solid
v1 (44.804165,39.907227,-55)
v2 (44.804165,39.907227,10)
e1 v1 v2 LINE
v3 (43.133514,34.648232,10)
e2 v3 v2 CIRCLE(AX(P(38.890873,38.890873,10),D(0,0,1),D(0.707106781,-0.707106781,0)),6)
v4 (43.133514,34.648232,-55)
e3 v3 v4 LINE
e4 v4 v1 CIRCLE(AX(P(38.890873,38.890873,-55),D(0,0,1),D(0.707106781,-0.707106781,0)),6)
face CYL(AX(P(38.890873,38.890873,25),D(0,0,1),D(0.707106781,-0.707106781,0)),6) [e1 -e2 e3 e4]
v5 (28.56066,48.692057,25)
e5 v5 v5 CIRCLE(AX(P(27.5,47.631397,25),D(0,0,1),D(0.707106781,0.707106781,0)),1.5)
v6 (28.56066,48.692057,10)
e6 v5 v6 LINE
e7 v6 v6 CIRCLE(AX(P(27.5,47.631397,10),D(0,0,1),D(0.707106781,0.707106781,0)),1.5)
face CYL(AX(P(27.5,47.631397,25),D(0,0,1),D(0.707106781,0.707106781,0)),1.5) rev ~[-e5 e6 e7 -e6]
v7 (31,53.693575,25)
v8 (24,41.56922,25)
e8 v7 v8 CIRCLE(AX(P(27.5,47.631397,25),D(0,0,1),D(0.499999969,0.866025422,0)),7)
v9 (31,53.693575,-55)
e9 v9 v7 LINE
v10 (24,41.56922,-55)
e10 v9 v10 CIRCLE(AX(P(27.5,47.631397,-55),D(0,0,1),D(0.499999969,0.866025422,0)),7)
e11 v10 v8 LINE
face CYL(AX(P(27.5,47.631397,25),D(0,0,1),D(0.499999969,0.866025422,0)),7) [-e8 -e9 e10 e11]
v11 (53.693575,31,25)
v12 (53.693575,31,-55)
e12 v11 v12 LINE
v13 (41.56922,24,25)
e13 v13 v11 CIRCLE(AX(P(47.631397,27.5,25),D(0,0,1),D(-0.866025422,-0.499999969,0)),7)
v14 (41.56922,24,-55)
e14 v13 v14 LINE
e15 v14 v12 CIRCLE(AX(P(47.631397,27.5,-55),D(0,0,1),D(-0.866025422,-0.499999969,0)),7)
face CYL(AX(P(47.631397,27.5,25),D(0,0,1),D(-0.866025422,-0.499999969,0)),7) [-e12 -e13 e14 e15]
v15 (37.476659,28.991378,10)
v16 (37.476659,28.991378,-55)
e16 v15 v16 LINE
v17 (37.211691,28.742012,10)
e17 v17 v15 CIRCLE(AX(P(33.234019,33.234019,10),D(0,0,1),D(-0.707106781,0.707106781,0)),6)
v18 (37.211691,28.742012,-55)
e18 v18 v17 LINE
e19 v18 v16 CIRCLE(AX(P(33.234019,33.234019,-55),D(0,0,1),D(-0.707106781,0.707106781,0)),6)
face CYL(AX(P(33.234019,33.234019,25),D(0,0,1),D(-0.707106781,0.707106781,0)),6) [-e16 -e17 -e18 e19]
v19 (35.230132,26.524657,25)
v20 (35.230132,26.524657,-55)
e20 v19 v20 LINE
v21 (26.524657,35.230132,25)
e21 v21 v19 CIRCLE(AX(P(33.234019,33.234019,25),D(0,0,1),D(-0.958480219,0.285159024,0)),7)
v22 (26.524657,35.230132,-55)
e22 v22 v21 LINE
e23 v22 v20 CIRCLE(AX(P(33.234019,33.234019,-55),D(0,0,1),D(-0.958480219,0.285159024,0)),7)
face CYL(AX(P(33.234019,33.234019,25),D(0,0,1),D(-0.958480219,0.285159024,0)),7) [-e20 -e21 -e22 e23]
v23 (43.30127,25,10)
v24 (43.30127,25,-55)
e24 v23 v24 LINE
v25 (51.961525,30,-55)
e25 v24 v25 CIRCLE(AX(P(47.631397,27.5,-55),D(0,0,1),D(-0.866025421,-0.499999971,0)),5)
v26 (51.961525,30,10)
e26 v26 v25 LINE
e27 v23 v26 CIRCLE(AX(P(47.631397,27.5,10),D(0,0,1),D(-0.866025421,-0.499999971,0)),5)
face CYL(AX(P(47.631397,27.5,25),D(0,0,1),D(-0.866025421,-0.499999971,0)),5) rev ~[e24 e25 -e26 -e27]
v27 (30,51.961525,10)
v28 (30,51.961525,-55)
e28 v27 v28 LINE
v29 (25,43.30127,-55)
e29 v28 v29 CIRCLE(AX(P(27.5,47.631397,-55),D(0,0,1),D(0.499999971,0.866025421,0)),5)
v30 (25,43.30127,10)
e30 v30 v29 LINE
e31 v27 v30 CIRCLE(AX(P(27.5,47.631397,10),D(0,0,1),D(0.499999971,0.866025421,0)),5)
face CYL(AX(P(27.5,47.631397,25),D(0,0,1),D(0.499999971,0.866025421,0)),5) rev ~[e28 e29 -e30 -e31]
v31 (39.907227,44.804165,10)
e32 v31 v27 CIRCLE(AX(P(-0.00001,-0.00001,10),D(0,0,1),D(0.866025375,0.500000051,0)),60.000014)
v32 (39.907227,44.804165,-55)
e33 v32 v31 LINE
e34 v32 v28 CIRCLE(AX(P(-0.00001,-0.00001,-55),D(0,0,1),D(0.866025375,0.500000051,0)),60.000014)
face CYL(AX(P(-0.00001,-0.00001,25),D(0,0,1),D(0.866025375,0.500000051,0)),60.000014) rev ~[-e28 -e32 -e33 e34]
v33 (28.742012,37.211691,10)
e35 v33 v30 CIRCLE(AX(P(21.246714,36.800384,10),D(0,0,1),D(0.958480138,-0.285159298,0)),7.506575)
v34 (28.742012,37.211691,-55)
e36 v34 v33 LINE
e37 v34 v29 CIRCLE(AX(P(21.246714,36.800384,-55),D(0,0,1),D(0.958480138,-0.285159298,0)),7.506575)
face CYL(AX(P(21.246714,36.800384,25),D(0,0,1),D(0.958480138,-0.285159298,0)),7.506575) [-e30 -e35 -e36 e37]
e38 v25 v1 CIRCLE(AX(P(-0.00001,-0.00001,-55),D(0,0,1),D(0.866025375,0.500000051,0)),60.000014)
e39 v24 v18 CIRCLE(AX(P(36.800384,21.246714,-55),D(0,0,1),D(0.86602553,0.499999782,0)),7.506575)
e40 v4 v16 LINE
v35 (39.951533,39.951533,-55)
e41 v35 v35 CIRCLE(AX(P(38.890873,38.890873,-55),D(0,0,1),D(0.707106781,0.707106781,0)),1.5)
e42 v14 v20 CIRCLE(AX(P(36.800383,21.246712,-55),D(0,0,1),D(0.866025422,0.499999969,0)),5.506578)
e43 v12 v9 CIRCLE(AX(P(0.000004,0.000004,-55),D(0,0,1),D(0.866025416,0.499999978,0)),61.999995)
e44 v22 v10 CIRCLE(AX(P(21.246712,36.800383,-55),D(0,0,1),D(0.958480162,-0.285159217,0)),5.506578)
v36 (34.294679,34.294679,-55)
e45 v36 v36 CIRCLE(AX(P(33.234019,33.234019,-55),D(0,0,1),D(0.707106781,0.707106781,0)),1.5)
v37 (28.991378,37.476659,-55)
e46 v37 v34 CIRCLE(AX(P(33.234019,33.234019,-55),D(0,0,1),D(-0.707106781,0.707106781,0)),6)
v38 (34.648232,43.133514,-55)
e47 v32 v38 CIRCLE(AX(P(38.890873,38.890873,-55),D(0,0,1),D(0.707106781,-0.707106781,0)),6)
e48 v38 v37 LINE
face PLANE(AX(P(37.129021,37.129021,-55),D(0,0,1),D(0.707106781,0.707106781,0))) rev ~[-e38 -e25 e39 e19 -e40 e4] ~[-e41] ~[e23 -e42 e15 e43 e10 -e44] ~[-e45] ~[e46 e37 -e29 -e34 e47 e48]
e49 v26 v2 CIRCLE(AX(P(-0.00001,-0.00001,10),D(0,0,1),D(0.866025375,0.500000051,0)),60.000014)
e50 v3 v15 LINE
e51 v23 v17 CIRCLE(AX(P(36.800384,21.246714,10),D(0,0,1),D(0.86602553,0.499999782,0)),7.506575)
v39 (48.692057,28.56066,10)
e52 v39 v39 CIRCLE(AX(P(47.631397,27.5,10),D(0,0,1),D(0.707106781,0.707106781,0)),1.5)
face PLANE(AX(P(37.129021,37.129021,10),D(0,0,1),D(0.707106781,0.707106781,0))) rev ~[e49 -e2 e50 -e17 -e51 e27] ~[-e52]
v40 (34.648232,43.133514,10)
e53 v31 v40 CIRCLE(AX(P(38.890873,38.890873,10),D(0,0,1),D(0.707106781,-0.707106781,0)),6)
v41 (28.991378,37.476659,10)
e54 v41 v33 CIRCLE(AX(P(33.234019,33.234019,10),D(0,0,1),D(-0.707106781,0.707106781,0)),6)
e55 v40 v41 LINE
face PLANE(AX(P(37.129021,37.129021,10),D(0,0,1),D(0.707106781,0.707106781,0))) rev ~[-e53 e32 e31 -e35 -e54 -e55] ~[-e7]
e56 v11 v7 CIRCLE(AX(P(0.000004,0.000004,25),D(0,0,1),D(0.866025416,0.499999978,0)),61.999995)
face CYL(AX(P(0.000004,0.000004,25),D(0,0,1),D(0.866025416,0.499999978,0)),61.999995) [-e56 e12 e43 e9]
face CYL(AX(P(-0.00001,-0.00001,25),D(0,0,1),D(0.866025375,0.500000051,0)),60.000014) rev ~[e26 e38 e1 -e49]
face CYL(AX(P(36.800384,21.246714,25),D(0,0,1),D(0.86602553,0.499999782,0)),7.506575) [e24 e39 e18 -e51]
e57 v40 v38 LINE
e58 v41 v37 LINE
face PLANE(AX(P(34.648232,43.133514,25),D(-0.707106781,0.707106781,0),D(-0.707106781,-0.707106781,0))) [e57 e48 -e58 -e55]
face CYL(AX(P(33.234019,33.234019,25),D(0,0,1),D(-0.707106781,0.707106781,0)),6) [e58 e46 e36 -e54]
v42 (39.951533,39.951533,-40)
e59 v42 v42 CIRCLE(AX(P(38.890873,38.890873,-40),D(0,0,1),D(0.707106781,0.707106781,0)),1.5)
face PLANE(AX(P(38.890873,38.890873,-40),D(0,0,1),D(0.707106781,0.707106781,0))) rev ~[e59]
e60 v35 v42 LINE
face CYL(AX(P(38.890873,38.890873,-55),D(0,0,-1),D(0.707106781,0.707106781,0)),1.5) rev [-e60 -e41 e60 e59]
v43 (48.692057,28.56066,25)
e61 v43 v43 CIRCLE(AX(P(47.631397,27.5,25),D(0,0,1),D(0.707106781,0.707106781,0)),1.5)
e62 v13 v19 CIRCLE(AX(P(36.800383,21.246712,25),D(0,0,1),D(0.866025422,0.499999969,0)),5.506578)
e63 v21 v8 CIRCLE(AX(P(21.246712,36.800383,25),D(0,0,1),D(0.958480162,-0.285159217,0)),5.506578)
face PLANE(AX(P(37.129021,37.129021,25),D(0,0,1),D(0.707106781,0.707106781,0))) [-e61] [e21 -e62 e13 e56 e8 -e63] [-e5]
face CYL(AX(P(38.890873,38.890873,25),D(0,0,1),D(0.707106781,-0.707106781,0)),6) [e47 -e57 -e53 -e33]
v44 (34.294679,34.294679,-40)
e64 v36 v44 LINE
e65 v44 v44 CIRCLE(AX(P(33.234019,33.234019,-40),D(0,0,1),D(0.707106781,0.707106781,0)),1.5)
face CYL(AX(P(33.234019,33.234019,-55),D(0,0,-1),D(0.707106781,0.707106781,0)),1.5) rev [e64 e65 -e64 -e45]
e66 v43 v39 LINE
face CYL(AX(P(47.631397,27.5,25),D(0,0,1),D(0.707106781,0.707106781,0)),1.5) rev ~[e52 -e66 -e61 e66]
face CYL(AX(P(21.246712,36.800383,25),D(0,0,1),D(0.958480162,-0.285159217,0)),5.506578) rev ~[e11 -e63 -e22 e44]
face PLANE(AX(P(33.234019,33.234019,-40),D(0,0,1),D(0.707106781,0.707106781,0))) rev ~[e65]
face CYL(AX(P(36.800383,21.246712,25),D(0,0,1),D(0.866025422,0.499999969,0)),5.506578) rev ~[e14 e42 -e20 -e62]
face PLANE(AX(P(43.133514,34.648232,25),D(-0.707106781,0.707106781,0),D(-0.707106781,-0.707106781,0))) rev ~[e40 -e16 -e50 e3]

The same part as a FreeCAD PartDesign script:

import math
import FreeCAD as App
import Part
import Sketcher
from FreeCAD import Vector

doc = App.newDocument("Part")
params = doc.addObject("Spreadsheet::Sheet", "Params")
for row, (alias, value) in enumerate([
    ("sketch1_diameter", "3 mm"),
    ("sketch1_radius", "7 mm"),
    ("pad1_length", "15 mm"),
    ("sketch2_radius", "7 mm"),
    ("sketch2_radius2", "5 mm"),
    ("pad2_length", "80 mm"),
    ("sketch3_radius", "6 mm"),
    ("sketch3_width", "8 mm"),
    ("pad3_length", "80 mm"),
    ("sketch4_diameter", "3 mm"),
    ("pocket1_length", "15 mm"),
], start=1):
    params.set(f"A{row}", alias)
    params.set(f"B{row}", "=" + value)
    params.setAlias(f"B{row}", alias)

body = doc.addObject("PartDesign::Body", "Body")

# Sketch on XY plane
sketch1 = body.newObject("Sketcher::SketchObject", "Sketch")
sketch1.AttachmentSupport = (doc.getObject("XY_Plane"), [""])
sketch1.MapMode = "FlatFace"
sketch1.addGeometry(Part.ArcOfCircle(Part.Circle(Vector(0, 0, 0), Vector(0, 0, 1), 62), math.radians(-15), math.radians(15)), False)
sketch1.addGeometry(Part.ArcOfCircle(Part.Circle(Vector(53.1, 14.2, 0), Vector(0, 0, 1), 7), math.radians(15), math.radians(195)), False)
sketch1.addGeometry(Part.ArcOfCircle(Part.Circle(Vector(41, 11, 0), Vector(0, 0, 1), 5.5), math.radians(-62), math.radians(15)), False)
sketch1.addGeometry(Part.ArcOfCircle(Part.Circle(Vector(47, 0, 0), Vector(0, 0, 1), 7), math.radians(118), math.radians(242)), False)
sketch1.addGeometry(Part.ArcOfCircle(Part.Circle(Vector(41, -11, 0), Vector(0, 0, 1), 5.5), math.radians(-15), math.radians(62)), False)
sketch1.addGeometry(Part.ArcOfCircle(Part.Circle(Vector(53.1, -14.2, 0), Vector(0, 0, 1), 7), math.radians(165), math.radians(345)), False)
sketch1.addGeometry(Part.Circle(Vector(53.1, -14.2, 0), Vector(0, 0, 1), 1.5), False)
sketch1.addGeometry(Part.Circle(Vector(53.1, 14.2, 0), Vector(0, 0, 1), 1.5), False)
sketch1.addConstraint(Sketcher.Constraint("Tangent", 0, 2, 1, 1))
sketch1.addConstraint(Sketcher.Constraint("Tangent", 1, 2, 2, 2))
sketch1.addConstraint(Sketcher.Constraint("Tangent", 2, 1, 3, 1))
sketch1.addConstraint(Sketcher.Constraint("Tangent", 3, 2, 4, 2))
sketch1.addConstraint(Sketcher.Constraint("Tangent", 4, 1, 5, 1))
sketch1.addConstraint(Sketcher.Constraint("Tangent", 5, 2, 0, 1))
sketch1.addConstraint(Sketcher.Constraint("Coincident", 0, 3, -1, 1))
sketch1.addConstraint(Sketcher.Constraint("Coincident", 6, 3, 5, 3))
sketch1.addConstraint(Sketcher.Constraint("Coincident", 7, 3, 1, 3))
sketch1.addConstraint(Sketcher.Constraint("Equal", 1, 3))
sketch1.addConstraint(Sketcher.Constraint("Equal", 2, 4))
sketch1.addConstraint(Sketcher.Constraint("Equal", 3, 5))
sketch1.addConstraint(Sketcher.Constraint("Equal", 6, 7))
sketch1.addConstraint(Sketcher.Constraint("PointOnObject", 3, 3, -1))
sketch1.addConstraint(Sketcher.Constraint("Vertical", 1, 3, 5, 3))
sketch1.addConstraint(Sketcher.Constraint("Diameter", 6, 3.0))
sketch1.addConstraint(Sketcher.Constraint("Radius", 1, 7.0))
sketch1.addConstraint(Sketcher.Constraint("DistanceX", -1, 1, 3, 3, 47.0))
sketch1.addConstraint(Sketcher.Constraint("Radius", 0, 61.999995))
sketch1.addConstraint(Sketcher.Constraint("Radius", 2, 5.506578))
sketch1.addConstraint(Sketcher.Constraint("DistanceX", -1, 1, 0, 2, 59.887401))
sketch1.setExpression("Constraints[15]", "Params.sketch1_diameter")
sketch1.setExpression("Constraints[16]", "Params.sketch1_radius")
pad1 = body.newObject("PartDesign::Pad", "Pad")
pad1.Profile = sketch1
pad1.setExpression("Length", "Params.pad1_length")
pad1.Reversed = True

# Sketch on XY plane
sketch2 = body.newObject("Sketcher::SketchObject", "Sketch001")
sketch2.AttachmentSupport = (doc.getObject("XY_Plane"), [""])
sketch2.MapMode = "FlatFace"
sketch2.addGeometry(Part.ArcOfCircle(Part.Circle(Vector(0, 0, 0), Vector(0, 0, 1), 62), math.radians(-15), math.radians(15)), False)
sketch2.addGeometry(Part.ArcOfCircle(Part.Circle(Vector(53, 14, 0), Vector(0, 0, 1), 7), math.radians(15), math.radians(195)), False)
sketch2.addGeometry(Part.ArcOfCircle(Part.Circle(Vector(41, 11, 0), Vector(0, 0, 1), 6), math.radians(-62), math.radians(15)), False)
sketch2.addGeometry(Part.ArcOfCircle(Part.Circle(Vector(47, 0, 0), Vector(0, 0, 1), 7), math.radians(118), math.radians(242)), False)
sketch2.addGeometry(Part.ArcOfCircle(Part.Circle(Vector(41, -11, 0), Vector(0, 0, 1), 6), math.radians(-15), math.radians(62)), False)
sketch2.addGeometry(Part.ArcOfCircle(Part.Circle(Vector(53, -14, 0), Vector(0, 0, 1), 7), math.radians(165), math.radians(345)), False)
sketch2.addGeometry(Part.ArcOfCircle(Part.Circle(Vector(53, 14, 0), Vector(0, 0, 1), 5), math.radians(15), math.radians(195)), False)
sketch2.addGeometry(Part.ArcOfCircle(Part.Circle(Vector(0, 0, 0), Vector(0, 0, 1), 60), math.radians(-15), math.radians(15)), False)
sketch2.addGeometry(Part.ArcOfCircle(Part.Circle(Vector(53, -14, 0), Vector(0, 0, 1), 5), math.radians(165), math.radians(345)), False)
sketch2.addGeometry(Part.ArcOfCircle(Part.Circle(Vector(41, -11, 0), Vector(0, 0, 1), 8), math.radians(-15), math.radians(62)), False)
sketch2.addGeometry(Part.ArcOfCircle(Part.Circle(Vector(47, 0, 0), Vector(0, 0, 1), 5), math.radians(118), math.radians(242)), False)
sketch2.addGeometry(Part.ArcOfCircle(Part.Circle(Vector(41, 11, 0), Vector(0, 0, 1), 8), math.radians(-62), math.radians(15)), False)
sketch2.addConstraint(Sketcher.Constraint("Tangent", 0, 2, 1, 1))
sketch2.addConstraint(Sketcher.Constraint("Tangent", 1, 2, 2, 2))
sketch2.addConstraint(Sketcher.Constraint("Tangent", 2, 1, 3, 1))
sketch2.addConstraint(Sketcher.Constraint("Tangent", 3, 2, 4, 2))
sketch2.addConstraint(Sketcher.Constraint("Tangent", 4, 1, 5, 1))
sketch2.addConstraint(Sketcher.Constraint("Tangent", 5, 2, 0, 1))
sketch2.addConstraint(Sketcher.Constraint("Tangent", 6, 1, 7, 2))
sketch2.addConstraint(Sketcher.Constraint("Tangent", 7, 1, 8, 2))
sketch2.addConstraint(Sketcher.Constraint("Tangent", 8, 1, 9, 1))
sketch2.addConstraint(Sketcher.Constraint("Tangent", 9, 2, 10, 2))
sketch2.addConstraint(Sketcher.Constraint("Tangent", 10, 1, 11, 1))
sketch2.addConstraint(Sketcher.Constraint("Tangent", 11, 2, 6, 2))
sketch2.addConstraint(Sketcher.Constraint("Coincident", 0, 3, -1, 1))
sketch2.addConstraint(Sketcher.Constraint("Coincident", 6, 3, 1, 3))
sketch2.addConstraint(Sketcher.Constraint("Coincident", 8, 3, 5, 3))
sketch2.addConstraint(Sketcher.Constraint("Coincident", 9, 3, 4, 3))
sketch2.addConstraint(Sketcher.Constraint("Coincident", 10, 3, 3, 3))
sketch2.addConstraint(Sketcher.Constraint("Coincident", 11, 3, 2, 3))
sketch2.addConstraint(Sketcher.Constraint("Equal", 1, 3))
sketch2.addConstraint(Sketcher.Constraint("Equal", 2, 4))
sketch2.addConstraint(Sketcher.Constraint("Equal", 3, 5))
sketch2.addConstraint(Sketcher.Constraint("PointOnObject", 3, 3, -1))
sketch2.addConstraint(Sketcher.Constraint("Vertical", 1, 3, 5, 3))
sketch2.addConstraint(Sketcher.Constraint("Radius", 1, 7.0))
sketch2.addConstraint(Sketcher.Constraint("Radius", 6, 5.0))
sketch2.addConstraint(Sketcher.Constraint("DistanceX", -1, 1, 3, 3, 47.0))
sketch2.addConstraint(Sketcher.Constraint("Radius", 0, 61.999995))
sketch2.addConstraint(Sketcher.Constraint("Radius", 2, 5.506578))
sketch2.addConstraint(Sketcher.Constraint("Radius", 7, 60.000014))
sketch2.addConstraint(Sketcher.Constraint("DistanceX", -1, 1, 0, 2, 59.887401))
sketch2.setExpression("Constraints[23]", "Params.sketch2_radius")
sketch2.setExpression("Constraints[24]", "Params.sketch2_radius2")
pad2 = body.newObject("PartDesign::Pad", "Pad001")
pad2.Profile = sketch2
pad2.setExpression("Length", "Params.pad2_length")
pad2.Reversed = True

# Sketch on XY plane
sketch3 = body.newObject("Sketcher::SketchObject", "Sketch002")
sketch3.AttachmentSupport = (doc.getObject("XY_Plane"), [""])
sketch3.MapMode = "FlatFace"
sketch3.addGeometry(Part.ArcOfCircle(Part.Circle(Vector(55, 0, 0), Vector(0, 0, 1), 6), math.radians(-90), math.radians(90)), False)
sketch3.addGeometry(Part.LineSegment(Vector(55, 6, 0), Vector(47, 6, 0)), False)
sketch3.addGeometry(Part.ArcOfCircle(Part.Circle(Vector(47, 0, 0), Vector(0, 0, 1), 6), math.radians(90), math.radians(270)), False)
sketch3.addGeometry(Part.LineSegment(Vector(47, -6, 0), Vector(55, -6, 0)), False)
sketch3.addConstraint(Sketcher.Constraint("Tangent", 0, 2, 1, 1))
sketch3.addConstraint(Sketcher.Constraint("Tangent", 1, 2, 2, 1))
sketch3.addConstraint(Sketcher.Constraint("Tangent", 2, 2, 3, 1))
sketch3.addConstraint(Sketcher.Constraint("Tangent", 3, 2, 0, 1))
sketch3.addConstraint(Sketcher.Constraint("Horizontal", 1))
sketch3.addConstraint(Sketcher.Constraint("Horizontal", 3))
sketch3.addConstraint(Sketcher.Constraint("PointOnObject", 0, 3, -1))
sketch3.addConstraint(Sketcher.Constraint("Radius", 0, 6.0))
sketch3.addConstraint(Sketcher.Constraint("DistanceX", 1, 2, 1, 1, 8.0))
sketch3.addConstraint(Sketcher.Constraint("DistanceX", -1, 1, 0, 3, 55.0))
sketch3.setExpression("Constraints[7]", "Params.sketch3_radius")
sketch3.setExpression("Constraints[8]", "Params.sketch3_width")
pad3 = body.newObject("PartDesign::Pad", "Pad002")
pad3.Profile = sketch3
pad3.setExpression("Length", "Params.pad3_length")
pad3.Reversed = True

# Sketch on XY plane
sketch4 = body.newObject("Sketcher::SketchObject", "Sketch003")
sketch4.AttachmentSupport = (doc.getObject("XY_Plane"), [""])
sketch4.MapMode = "FlatFace"
sketch4.AttachmentOffset = App.Placement(Vector(0, 0, -80), App.Rotation())
sketch4.addGeometry(Part.Circle(Vector(47, 0, 0), Vector(0, 0, 1), 1.5), False)
sketch4.addGeometry(Part.Circle(Vector(55, 0, 0), Vector(0, 0, 1), 1.5), False)
sketch4.addConstraint(Sketcher.Constraint("Equal", 0, 1))
sketch4.addConstraint(Sketcher.Constraint("PointOnObject", 0, 3, -1))
sketch4.addConstraint(Sketcher.Constraint("PointOnObject", 1, 3, -1))
sketch4.addConstraint(Sketcher.Constraint("Diameter", 0, 3.0))
sketch4.addConstraint(Sketcher.Constraint("DistanceX", -1, 1, 0, 3, 47.0))
sketch4.addConstraint(Sketcher.Constraint("DistanceX", -1, 1, 1, 3, 55.0))
sketch4.setExpression("Constraints[3]", "Params.sketch4_diameter")
pocket1 = body.newObject("PartDesign::Pocket", "Pocket")
pocket1.Profile = sketch4
pocket1.setExpression("Length", "Params.pocket1_length")
pocket1.Reversed = True
body2 = doc.addObject("PartDesign::Body", "Body001")
doc.recompute()

body.Placement = App.Placement(Vector(0, 0, 25), App.Rotation(Vector(0, 0, 1), 45))
boolean = body2.newObject("PartDesign::Boolean", "Boolean")
boolean.Type = "Fuse"
boolean.addObjects([body])

doc.recompute()
